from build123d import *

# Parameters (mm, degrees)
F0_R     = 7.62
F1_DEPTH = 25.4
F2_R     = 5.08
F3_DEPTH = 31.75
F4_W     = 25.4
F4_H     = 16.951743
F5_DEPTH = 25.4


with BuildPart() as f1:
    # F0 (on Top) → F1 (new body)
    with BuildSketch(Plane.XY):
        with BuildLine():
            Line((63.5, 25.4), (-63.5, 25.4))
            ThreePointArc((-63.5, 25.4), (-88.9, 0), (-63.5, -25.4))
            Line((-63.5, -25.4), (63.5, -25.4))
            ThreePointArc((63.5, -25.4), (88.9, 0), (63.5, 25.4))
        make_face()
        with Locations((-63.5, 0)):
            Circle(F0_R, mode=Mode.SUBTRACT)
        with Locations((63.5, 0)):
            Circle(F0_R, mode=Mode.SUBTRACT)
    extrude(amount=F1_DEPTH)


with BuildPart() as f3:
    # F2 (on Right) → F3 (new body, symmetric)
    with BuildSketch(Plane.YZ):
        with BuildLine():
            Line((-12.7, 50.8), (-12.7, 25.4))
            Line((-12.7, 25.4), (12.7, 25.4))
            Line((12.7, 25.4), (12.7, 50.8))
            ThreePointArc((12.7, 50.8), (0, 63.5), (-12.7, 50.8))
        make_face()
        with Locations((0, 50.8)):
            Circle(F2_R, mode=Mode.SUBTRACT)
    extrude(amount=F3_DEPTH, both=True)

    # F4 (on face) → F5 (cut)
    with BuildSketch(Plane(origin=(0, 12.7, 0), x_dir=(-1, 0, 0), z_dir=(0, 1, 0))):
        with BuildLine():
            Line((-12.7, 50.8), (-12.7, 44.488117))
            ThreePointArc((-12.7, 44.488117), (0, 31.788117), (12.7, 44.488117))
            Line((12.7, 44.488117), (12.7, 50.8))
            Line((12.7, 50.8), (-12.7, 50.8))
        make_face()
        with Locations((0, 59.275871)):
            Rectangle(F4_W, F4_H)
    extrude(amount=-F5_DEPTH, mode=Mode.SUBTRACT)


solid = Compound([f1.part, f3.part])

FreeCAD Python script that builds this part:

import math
import FreeCAD as App
import Part
import Sketcher

V = App.Vector
Q = App.Units.Quantity

doc = App.newDocument("Part")
body = doc.addObject("PartDesign::Body", "Body")

# Sketch on XY plane
sketch1 = doc.addObject("Sketcher::SketchObject", "Sketch")
body.addObject(sketch1)
sketch1.AttachmentSupport = (doc.XY_Plane, [""])
sketch1.MapMode = "FlatFace"
sketch1.addGeometry([
    Part.LineSegment(V(63.5, 25.4, 0), V(-63.5, 25.4, 0)),  # 0
    Part.ArcOfCircle(Part.Circle(V(-63.5, 0, 0), V(0, 0, 1), 25.4), math.radians(90), math.radians(270)),  # 1
    Part.LineSegment(V(-63.5, -25.4, 0), V(63.5, -25.4, 0)),  # 2
    Part.ArcOfCircle(Part.Circle(V(63.5, 0, 0), V(0, 0, 1), 25.4), math.radians(-90), math.radians(90)),  # 3
    Part.Circle(V(-63.5, 0, 0), V(0, 0, 1), 7.62),  # 4
    Part.Circle(V(63.5, 0, 0), V(0, 0, 1), 7.62),  # 5
], False)
sketch1.addConstraint([
    Sketcher.Constraint("Tangent", 0, 2, 1, 1),
    Sketcher.Constraint("Tangent", 1, 2, 2, 1),
    Sketcher.Constraint("Tangent", 2, 2, 3, 1),
    Sketcher.Constraint("Tangent", 3, 2, 0, 1),
    Sketcher.Constraint("Horizontal", 0),
    Sketcher.Constraint("Horizontal", 2),
    Sketcher.Constraint("Coincident", 4, 3, 1, 3),
    Sketcher.Constraint("Coincident", 5, 3, 3, 3),
    Sketcher.Constraint("Equal", 4, 5),
    Sketcher.Constraint("Symmetric", 1, 3, 3, 3, -1, 1),
    Sketcher.Constraint("Radius", 1, Q("1 in")),
    Sketcher.Constraint("Diameter", 4, Q("0.6 in")),
    Sketcher.Constraint("DistanceX", 0, 2, 0, 1, Q("5 in")),
])
pad1 = doc.addObject("PartDesign::Pad", "Pad")
body.addObject(pad1)
pad1.Profile = sketch1
pad1.Length = Q("1 in")
body2 = doc.addObject("PartDesign::Body", "Body001")

# Sketch on YZ plane
sketch2 = doc.addObject("Sketcher::SketchObject", "Sketch001")
body2.addObject(sketch2)
sketch2.AttachmentSupport = (doc.getObject("YZ_Plane001"), [""])
sketch2.MapMode = "FlatFace"
sketch2.addGeometry([
    Part.LineSegment(V(-12.7, 50.8, 0), V(-12.7, 25.4, 0)),  # 0
    Part.LineSegment(V(-12.7, 25.4, 0), V(12.7, 25.4, 0)),  # 1
    Part.LineSegment(V(12.7, 25.4, 0), V(12.7, 50.8, 0)),  # 2
    Part.ArcOfCircle(Part.Circle(V(0, 50.8, 0), V(0, 0, 1), 12.7), math.radians(0), math.radians(180)),  # 3
    Part.Circle(V(0, 50.8, 0), V(0, 0, 1), 5.08),  # 4
], False)
sketch2.addConstraint([
    Sketcher.Constraint("Coincident", 0, 2, 1, 1),
    Sketcher.Constraint("Coincident", 1, 2, 2, 1),
    Sketcher.Constraint("Tangent", 2, 2, 3, 1),
    Sketcher.Constraint("Tangent", 3, 2, 0, 1),
    Sketcher.Constraint("Vertical", 0),
    Sketcher.Constraint("Horizontal", 1),
    Sketcher.Constraint("Vertical", 2),
    Sketcher.Constraint("Coincident", 4, 3, 3, 3),
    Sketcher.Constraint("PointOnObject", 3, 3, -2),
    Sketcher.Constraint("Equal", 1, 0),
    Sketcher.Constraint("Diameter", 4, Q("0.4 in")),
    Sketcher.Constraint("Radius", 3, Q("0.5 in")),
    Sketcher.Constraint("DistanceY", -1, 1, 3, 3, Q("2 in")),
])
pad2 = doc.addObject("PartDesign::Pad", "Pad001")
body2.addObject(pad2)
pad2.Profile = sketch2
pad2.Length = Q("2.5 in")
pad2.Midplane = True

# Sketch on XZ plane
sketch3 = doc.addObject("Sketcher::SketchObject", "Sketch002")
body2.addObject(sketch3)
sketch3.AttachmentSupport = (doc.getObject("XZ_Plane001"), [""])
sketch3.MapMode = "FlatFace"
sketch3.AttachmentOffset = App.Placement(V(0, 0, -0.5 * 25.4), App.Rotation())
sketch3.addGeometry([
    Part.LineSegment(V(-12.7, 67.751743, 0), V(12.7, 67.751743, 0)),
    Part.LineSegment(V(12.7, 67.751743, 0), V(12.7, 44.488117, 0)),
    Part.ArcOfCircle(Part.Circle(V(0, 44.488117, 0), V(0, 0, 1), 12.7), math.radians(180), math.radians(360)),
    Part.LineSegment(V(-12.7, 44.488117, 0), V(-12.7, 67.751743, 0)),
], False)
sketch3.addConstraint([
    Sketcher.Constraint("Coincident", 0, 2, 1, 1),
    Sketcher.Constraint("Tangent", 1, 2, 2, 2),
    Sketcher.Constraint("Tangent", 2, 1, 3, 1),
    Sketcher.Constraint("Coincident", 3, 2, 0, 1),
    Sketcher.Constraint("Horizontal", 0),
    Sketcher.Constraint("Vertical", 1),
    Sketcher.Constraint("Vertical", 3),
    Sketcher.Constraint("PointOnObject", 2, 3, -2),
    Sketcher.Constraint("Radius", 2, Q("0.5 in")),
    Sketcher.Constraint("DistanceY", 1, 2, 1, 1, Q("23.263626 mm")),
    Sketcher.Constraint("DistanceY", -1, 1, 2, 3, Q("44.488117 mm")),
])
pocket1 = doc.addObject("PartDesign::Pocket", "Pocket")
body2.addObject(pocket1)
pocket1.Profile = sketch3
pocket1.Length = Q("1 in")
pocket1.Reversed = True

doc.recompute()
